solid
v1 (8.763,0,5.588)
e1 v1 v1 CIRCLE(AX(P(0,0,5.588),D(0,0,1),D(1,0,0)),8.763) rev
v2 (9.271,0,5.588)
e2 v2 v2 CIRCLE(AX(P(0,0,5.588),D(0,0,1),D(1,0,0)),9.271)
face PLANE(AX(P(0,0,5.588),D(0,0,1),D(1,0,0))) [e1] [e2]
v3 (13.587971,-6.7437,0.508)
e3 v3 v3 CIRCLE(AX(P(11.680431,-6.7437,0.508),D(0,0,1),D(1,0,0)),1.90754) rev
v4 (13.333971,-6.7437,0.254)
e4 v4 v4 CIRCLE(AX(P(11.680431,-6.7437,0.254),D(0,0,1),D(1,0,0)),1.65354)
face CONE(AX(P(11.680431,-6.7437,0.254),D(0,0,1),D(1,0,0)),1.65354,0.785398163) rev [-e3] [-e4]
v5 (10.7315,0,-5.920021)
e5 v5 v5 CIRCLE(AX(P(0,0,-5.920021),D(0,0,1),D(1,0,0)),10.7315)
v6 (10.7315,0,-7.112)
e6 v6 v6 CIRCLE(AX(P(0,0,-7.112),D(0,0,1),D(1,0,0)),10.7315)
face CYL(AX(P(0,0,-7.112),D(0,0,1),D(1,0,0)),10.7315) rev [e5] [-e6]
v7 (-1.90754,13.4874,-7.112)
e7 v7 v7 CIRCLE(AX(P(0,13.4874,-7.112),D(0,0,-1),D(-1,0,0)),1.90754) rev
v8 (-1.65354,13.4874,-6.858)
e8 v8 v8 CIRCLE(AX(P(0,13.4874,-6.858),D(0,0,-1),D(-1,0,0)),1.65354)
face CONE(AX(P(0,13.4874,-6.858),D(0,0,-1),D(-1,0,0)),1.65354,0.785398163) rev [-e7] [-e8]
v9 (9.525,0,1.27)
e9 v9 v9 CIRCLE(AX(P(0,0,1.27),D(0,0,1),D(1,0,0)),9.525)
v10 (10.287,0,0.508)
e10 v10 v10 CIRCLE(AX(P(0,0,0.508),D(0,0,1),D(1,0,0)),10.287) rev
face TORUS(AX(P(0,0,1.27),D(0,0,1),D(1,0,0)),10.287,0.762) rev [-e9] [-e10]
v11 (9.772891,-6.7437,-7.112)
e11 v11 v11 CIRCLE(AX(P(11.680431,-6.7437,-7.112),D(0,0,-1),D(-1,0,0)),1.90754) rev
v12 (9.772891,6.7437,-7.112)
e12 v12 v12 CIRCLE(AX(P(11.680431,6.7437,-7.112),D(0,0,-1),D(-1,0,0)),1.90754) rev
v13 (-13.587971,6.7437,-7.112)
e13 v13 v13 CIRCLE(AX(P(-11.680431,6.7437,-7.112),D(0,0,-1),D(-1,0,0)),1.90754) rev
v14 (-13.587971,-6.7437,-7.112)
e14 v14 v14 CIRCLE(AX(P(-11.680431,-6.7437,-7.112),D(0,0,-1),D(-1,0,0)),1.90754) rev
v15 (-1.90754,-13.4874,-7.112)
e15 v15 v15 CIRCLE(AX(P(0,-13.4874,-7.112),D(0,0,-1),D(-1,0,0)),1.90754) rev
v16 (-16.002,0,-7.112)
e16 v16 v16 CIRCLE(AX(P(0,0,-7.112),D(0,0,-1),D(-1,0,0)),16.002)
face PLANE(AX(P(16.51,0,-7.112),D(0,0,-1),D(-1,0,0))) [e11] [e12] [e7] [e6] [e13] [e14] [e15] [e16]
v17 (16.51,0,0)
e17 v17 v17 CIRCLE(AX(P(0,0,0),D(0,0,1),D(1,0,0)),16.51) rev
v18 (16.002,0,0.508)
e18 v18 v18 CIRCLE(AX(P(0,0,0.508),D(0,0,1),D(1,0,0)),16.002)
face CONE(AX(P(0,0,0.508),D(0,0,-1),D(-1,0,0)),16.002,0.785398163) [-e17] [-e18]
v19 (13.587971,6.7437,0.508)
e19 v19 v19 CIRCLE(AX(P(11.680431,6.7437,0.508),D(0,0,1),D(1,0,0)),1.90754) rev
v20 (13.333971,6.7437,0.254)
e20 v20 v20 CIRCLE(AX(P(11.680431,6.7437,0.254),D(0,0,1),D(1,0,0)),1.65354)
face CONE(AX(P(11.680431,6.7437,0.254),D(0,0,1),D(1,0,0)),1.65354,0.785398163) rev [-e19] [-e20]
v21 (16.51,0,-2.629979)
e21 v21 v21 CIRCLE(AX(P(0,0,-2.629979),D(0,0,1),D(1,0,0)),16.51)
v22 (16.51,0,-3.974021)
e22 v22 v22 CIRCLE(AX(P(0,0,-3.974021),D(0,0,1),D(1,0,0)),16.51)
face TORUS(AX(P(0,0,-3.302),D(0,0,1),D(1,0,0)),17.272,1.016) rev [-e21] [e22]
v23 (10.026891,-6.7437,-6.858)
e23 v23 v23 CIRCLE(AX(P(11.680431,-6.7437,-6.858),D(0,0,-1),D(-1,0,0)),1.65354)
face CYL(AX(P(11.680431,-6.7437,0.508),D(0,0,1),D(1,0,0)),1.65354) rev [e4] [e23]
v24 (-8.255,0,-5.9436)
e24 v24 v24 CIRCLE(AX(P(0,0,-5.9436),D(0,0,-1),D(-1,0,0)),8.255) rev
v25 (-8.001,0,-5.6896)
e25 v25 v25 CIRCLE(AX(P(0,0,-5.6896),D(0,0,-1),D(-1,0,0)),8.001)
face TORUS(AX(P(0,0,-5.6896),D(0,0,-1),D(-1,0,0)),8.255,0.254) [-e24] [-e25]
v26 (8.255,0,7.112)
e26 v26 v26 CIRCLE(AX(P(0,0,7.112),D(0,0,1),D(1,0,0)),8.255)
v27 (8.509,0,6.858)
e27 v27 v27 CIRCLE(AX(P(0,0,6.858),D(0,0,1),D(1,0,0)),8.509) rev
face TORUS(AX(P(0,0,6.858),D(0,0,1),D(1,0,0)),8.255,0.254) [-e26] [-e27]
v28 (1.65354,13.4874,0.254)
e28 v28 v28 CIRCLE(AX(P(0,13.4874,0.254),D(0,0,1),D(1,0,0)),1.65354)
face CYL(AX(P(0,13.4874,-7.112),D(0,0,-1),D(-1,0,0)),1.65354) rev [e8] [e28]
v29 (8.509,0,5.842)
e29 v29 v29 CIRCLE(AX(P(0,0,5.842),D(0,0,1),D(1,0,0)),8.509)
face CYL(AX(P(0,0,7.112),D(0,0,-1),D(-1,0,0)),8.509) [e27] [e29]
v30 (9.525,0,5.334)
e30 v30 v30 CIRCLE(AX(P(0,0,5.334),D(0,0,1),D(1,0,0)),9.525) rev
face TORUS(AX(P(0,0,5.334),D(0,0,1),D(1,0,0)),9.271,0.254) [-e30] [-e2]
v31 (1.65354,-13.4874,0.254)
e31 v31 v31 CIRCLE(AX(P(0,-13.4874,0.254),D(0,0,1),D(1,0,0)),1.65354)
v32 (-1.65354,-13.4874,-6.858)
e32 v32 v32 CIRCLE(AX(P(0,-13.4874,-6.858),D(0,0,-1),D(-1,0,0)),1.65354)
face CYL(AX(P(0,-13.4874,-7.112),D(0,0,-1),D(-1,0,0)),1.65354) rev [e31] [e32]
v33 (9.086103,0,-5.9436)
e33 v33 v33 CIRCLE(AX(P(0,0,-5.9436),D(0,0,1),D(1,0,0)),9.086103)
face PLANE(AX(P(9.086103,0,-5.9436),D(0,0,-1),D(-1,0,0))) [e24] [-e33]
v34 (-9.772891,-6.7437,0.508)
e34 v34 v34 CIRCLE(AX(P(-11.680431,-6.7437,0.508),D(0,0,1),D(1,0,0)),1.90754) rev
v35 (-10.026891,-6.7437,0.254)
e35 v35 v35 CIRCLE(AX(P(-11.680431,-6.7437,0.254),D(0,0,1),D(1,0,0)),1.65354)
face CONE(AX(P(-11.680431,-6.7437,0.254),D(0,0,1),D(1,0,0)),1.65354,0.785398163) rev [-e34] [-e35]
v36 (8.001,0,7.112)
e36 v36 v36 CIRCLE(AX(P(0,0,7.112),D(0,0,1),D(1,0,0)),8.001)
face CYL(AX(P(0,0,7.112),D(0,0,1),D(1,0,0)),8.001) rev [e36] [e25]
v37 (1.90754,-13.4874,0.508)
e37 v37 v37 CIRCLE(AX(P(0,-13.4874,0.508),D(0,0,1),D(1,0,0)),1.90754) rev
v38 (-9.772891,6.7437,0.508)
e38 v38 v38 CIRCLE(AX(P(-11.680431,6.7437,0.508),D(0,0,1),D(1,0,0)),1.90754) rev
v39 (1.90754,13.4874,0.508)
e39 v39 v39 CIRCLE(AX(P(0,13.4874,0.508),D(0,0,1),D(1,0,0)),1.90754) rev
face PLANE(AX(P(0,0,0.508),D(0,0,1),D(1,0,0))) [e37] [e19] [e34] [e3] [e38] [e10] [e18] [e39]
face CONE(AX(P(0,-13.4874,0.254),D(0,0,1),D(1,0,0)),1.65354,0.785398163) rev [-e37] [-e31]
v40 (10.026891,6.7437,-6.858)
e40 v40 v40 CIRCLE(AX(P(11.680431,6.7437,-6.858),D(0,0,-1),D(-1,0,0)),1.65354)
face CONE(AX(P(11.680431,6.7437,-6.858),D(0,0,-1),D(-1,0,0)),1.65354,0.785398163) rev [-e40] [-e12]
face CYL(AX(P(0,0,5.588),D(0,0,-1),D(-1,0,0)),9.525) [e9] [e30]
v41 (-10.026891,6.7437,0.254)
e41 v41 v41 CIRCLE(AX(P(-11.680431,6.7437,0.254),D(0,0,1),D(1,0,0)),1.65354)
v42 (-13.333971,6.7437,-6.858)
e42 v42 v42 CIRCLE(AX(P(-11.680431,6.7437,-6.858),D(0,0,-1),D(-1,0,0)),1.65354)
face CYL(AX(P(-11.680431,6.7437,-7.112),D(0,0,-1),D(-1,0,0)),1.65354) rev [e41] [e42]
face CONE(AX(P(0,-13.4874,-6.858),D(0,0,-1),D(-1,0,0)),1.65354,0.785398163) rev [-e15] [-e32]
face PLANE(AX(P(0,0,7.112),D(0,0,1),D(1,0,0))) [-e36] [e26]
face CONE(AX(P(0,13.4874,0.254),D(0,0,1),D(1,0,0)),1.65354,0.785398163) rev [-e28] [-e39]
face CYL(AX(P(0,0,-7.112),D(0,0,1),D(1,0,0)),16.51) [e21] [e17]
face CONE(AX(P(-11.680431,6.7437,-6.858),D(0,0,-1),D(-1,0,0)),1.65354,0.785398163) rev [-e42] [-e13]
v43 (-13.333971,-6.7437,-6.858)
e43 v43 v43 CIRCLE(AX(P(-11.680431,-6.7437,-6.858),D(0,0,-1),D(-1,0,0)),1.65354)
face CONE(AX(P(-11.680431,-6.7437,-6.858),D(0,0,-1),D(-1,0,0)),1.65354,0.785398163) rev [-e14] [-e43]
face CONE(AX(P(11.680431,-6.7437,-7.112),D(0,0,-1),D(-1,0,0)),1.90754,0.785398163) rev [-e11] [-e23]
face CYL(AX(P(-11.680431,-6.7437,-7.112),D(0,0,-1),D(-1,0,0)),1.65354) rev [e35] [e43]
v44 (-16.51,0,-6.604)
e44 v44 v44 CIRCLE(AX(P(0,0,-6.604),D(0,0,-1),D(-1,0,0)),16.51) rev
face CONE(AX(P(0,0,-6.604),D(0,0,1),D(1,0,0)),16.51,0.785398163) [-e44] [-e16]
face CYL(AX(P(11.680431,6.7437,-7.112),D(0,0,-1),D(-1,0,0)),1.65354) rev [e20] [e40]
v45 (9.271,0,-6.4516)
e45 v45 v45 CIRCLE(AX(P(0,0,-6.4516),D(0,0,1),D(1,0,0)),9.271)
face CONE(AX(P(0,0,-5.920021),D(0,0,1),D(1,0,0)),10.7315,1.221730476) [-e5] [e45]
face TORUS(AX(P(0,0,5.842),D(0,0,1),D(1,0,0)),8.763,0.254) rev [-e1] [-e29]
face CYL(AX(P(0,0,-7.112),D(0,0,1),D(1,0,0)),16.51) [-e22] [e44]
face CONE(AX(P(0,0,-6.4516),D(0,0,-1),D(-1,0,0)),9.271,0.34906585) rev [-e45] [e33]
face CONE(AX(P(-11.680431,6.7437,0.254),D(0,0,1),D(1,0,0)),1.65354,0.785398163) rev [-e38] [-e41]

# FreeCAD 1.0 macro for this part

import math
import FreeCAD as App
import Part
import Sketcher
from FreeCAD import Vector
Q = App.Units.Quantity


def edges_at(feature, points):
    """Names of the edges that pass closest to the given points."""
    edges = feature.Shape.Edges
    near = lambda p: min(range(len(edges)), key=lambda i: edges[i].distToShape(Part.Vertex(*p))[0])
    return sorted({f"Edge{near(p) + 1}" for p in points})

doc = App.newDocument("Part")
body = doc.addObject("PartDesign::Body", "Body")

# Sketch on XZ plane
sketch1 = body.newObject("Sketcher::SketchObject", "Sketch")
sketch1.AttachmentSupport = (doc.getObject("XZ_Plane"), [""])
sketch1.MapMode = "FlatFace"
sketch1.addGeometry(Part.LineSegment(Vector(9.1, -5.9, 0), Vector(0, -5.9, 0)), False)
sketch1.addGeometry(Part.LineSegment(Vector(0, -5.9, 0), Vector(0, 0.5, 0)), False)
sketch1.addGeometry(Part.LineSegment(Vector(0, 0.5, 0), Vector(16.5, 0.5, 0)), False)
sketch1.addGeometry(Part.LineSegment(Vector(16.5, 0.5, 0), Vector(16.5, -2.6, 0)), False)
sketch1.addGeometry(Part.ArcOfCircle(Part.Circle(Vector(17.3, -3.3, 0), Vector(0, 0, 1), 1), math.radians(139), math.radians(221)), False)
sketch1.addGeometry(Part.LineSegment(Vector(16.5, -4, 0), Vector(16.5, -7.1, 0)), False)
sketch1.addGeometry(Part.LineSegment(Vector(16.5, -7.1, 0), Vector(10.7, -7.1, 0)), False)
sketch1.addGeometry(Part.LineSegment(Vector(10.7, -7.1, 0), Vector(10.7, -5.9, 0)), False)
sketch1.addGeometry(Part.LineSegment(Vector(10.7, -5.9, 0), Vector(9.3, -6.5, 0)), False)
sketch1.addGeometry(Part.LineSegment(Vector(9.3, -6.5, 0), Vector(9.1, -5.9, 0)), False)
sketch1.addConstraint(Sketcher.Constraint("Coincident", 0, 2, 1, 1))
sketch1.addConstraint(Sketcher.Constraint("Coincident", 1, 2, 2, 1))
sketch1.addConstraint(Sketcher.Constraint("Coincident", 2, 2, 3, 1))
sketch1.addConstraint(Sketcher.Constraint("Coincident", 3, 2, 4, 1))
sketch1.addConstraint(Sketcher.Constraint("Coincident", 4, 2, 5, 1))
sketch1.addConstraint(Sketcher.Constraint("Coincident", 5, 2, 6, 1))
sketch1.addConstraint(Sketcher.Constraint("Coincident", 6, 2, 7, 1))
sketch1.addConstraint(Sketcher.Constraint("Coincident", 7, 2, 8, 1))
sketch1.addConstraint(Sketcher.Constraint("Coincident", 8, 2, 9, 1))
sketch1.addConstraint(Sketcher.Constraint("Coincident", 9, 2, 0, 1))
sketch1.addConstraint(Sketcher.Constraint("Horizontal", 0))
sketch1.addConstraint(Sketcher.Constraint("Vertical", 1))
sketch1.addConstraint(Sketcher.Constraint("Horizontal", 2))
sketch1.addConstraint(Sketcher.Constraint("Vertical", 3))
sketch1.addConstraint(Sketcher.Constraint("Vertical", 5))
sketch1.addConstraint(Sketcher.Constraint("Horizontal", 6))
sketch1.addConstraint(Sketcher.Constraint("Vertical", 7))
sketch1.addConstraint(Sketcher.Constraint("PointOnObject", 0, 2, -2))
sketch1.addConstraint(Sketcher.Constraint("Perpendicular", 8, 9))
sketch1.addConstraint(Sketcher.Constraint("Vertical", 3, 2, 4, 2))
sketch1.addConstraint(Sketcher.Constraint("Equal", 3, 5))
sketch1.addConstraint(Sketcher.Constraint("Radius", 4, Q("0.04 in")))
sketch1.addConstraint(Sketcher.Constraint("Angle", 8, Q("-160 deg")))
sketch1.addConstraint(Sketcher.Constraint("DistanceX", 2, 1, 2, 2, Q("0.65 in")))
sketch1.addConstraint(Sketcher.Constraint("DistanceY", 5, 2, 2, 2, Q("0.3 in")))
sketch1.addConstraint(Sketcher.Constraint("DistanceY", 1, 1, 1, 2, Q("0.254 in")))
sketch1.addConstraint(Sketcher.Constraint("DistanceX", -1, 1, 4, 3, Q("0.68 in")))
sketch1.addConstraint(Sketcher.Constraint("DistanceY", 4, 3, -1, 1, Q("0.13 in")))
sketch1.addConstraint(Sketcher.Constraint("DistanceY", 8, 2, 9, 2, Q("0.02 in")))
sketch1.addConstraint(Sketcher.Constraint("DistanceX", 6, 2, 6, 1, Q("0.2275 in")))
sketch1.addConstraint(Sketcher.Constraint("DistanceX", -1, 1, 8, 2, Q("0.365 in")))
revolution = body.newObject("PartDesign::Revolution", "Revolution")
revolution.Profile = sketch1
revolution.ReferenceAxis = (sketch1, ["V_Axis"])
revolution.Angle = 360

# Sketch on XY plane
sketch2 = body.newObject("Sketcher::SketchObject", "Sketch001")
sketch2.AttachmentSupport = (doc.getObject("XY_Plane"), [""])
sketch2.MapMode = "FlatFace"
sketch2.AttachmentOffset = App.Placement(Vector(0, 0, 0.02 * 25.4), App.Rotation())
sketch2.addGeometry(Part.Circle(Vector(0, 0, 0), Vector(0, 0, 1), 10), False)
sketch2.addConstraint(Sketcher.Constraint("Coincident", 0, 3, -1, 1))
sketch2.addConstraint(Sketcher.Constraint("Diameter", 0, Q("0.75 in")))
pad1 = body.newObject("PartDesign::Pad", "Pad")
pad1.Profile = sketch2
pad1.Length = Q("0.2 in")

# Sketch on XY plane
sketch3 = body.newObject("Sketcher::SketchObject", "Sketch002")
sketch3.AttachmentSupport = (doc.getObject("XY_Plane"), [""])
sketch3.MapMode = "FlatFace"
sketch3.AttachmentOffset = App.Placement(Vector(0, 0, 0.22 * 25.4), App.Rotation())
sketch3.addGeometry(Part.Circle(Vector(0, 0, 0), Vector(0, 0, 1), 9), False)
sketch3.addConstraint(Sketcher.Constraint("Coincident", 0, 3, -1, 1))
sketch3.addConstraint(Sketcher.Constraint("Diameter", 0, Q("0.67 in")))
pad2 = body.newObject("PartDesign::Pad", "Pad001")
pad2.Profile = sketch3
pad2.Length = Q("0.06 in")

# Sketch on XY plane
sketch4 = body.newObject("Sketcher::SketchObject", "Sketch003")
sketch4.AttachmentSupport = (doc.getObject("XY_Plane"), [""])
sketch4.MapMode = "FlatFace"
sketch4.AttachmentOffset = App.Placement(Vector(0, 0, 0.28 * 25.4), App.Rotation())
sketch4.addGeometry(Part.Circle(Vector(0, 0, 0), Vector(0, 0, 1), 8), False)
sketch4.addConstraint(Sketcher.Constraint("Coincident", 0, 3, -1, 1))
sketch4.addConstraint(Sketcher.Constraint("Diameter", 0, Q("0.63 in")))
doc.recompute()
hole = body.newObject("PartDesign::Hole", "Hole")
hole.Profile = sketch4
hole.ThreadType = "None"
hole.Diameter = Q("0.63 in")
hole.DepthType = "Dimension"
hole.Depth = Q("0.56 in")
hole.DrillPoint = "Flat"

# Sketch on XY plane
sketch5 = body.newObject("Sketcher::SketchObject", "Sketch004")
sketch5.AttachmentSupport = (doc.getObject("XY_Plane"), [""])
sketch5.MapMode = "FlatFace"
sketch5.AttachmentOffset = App.Placement(Vector(0, 0, 0.02 * 25.4), App.Rotation())
sketch5.addGeometry(Part.Circle(Vector(11.7, -6.7, 0), Vector(0, 0, 1), 1.7), False)
sketch5.addConstraint(Sketcher.Constraint("Diameter", 0, Q("0.1302 in")))
sketch5.addConstraint(Sketcher.Constraint("DistanceY", 0, 3, -1, 1, Q("0.2655 in")))
sketch5.addConstraint(Sketcher.Constraint("DistanceX", -1, 1, 0, 3, Q("11.680431 mm")))
doc.recompute()
hole2 = body.newObject("PartDesign::Hole", "Hole001")
hole2.Profile = sketch5
hole2.ThreadType = "None"
hole2.Diameter = Q("0.1302 in")
hole2.DepthType = "ThroughAll"

# Sketch on XY plane
sketch6 = body.newObject("Sketcher::SketchObject", "Sketch005")
sketch6.AttachmentSupport = (doc.getObject("XY_Plane"), [""])
sketch6.MapMode = "FlatFace"
sketch6.AttachmentOffset = App.Placement(Vector(0, 0, -0.28 * 25.4), App.Rotation())
sketch6.addGeometry(Part.Circle(Vector(0, 13.5, 0), Vector(0, 0, 1), 1.7), False)
sketch6.addGeometry(Part.Circle(Vector(-11.7, 6.7, 0), Vector(0, 0, 1), 1.7), False)
sketch6.addGeometry(Part.Circle(Vector(-11.7, -6.7, 0), Vector(0, 0, 1), 1.7), False)
sketch6.addGeometry(Part.Circle(Vector(0, -13.5, 0), Vector(0, 0, 1), 1.7), False)
sketch6.addGeometry(Part.Circle(Vector(11.7, 6.7, 0), Vector(0, 0, 1), 1.7), False)
sketch6.addConstraint(Sketcher.Constraint("Equal", 0, 1))
sketch6.addConstraint(Sketcher.Constraint("Equal", 1, 2))
sketch6.addConstraint(Sketcher.Constraint("Equal", 2, 3))
sketch6.addConstraint(Sketcher.Constraint("Equal", 3, 4))
sketch6.addConstraint(Sketcher.Constraint("Symmetric", 0, 3, 3, 3, -1, 1))
sketch6.addConstraint(Sketcher.Constraint("Symmetric", 2, 3, 4, 3, -1, 1))
sketch6.addConstraint(Sketcher.Constraint("Symmetric", 1, 3, 4, 3, -2))
sketch6.addConstraint(Sketcher.Constraint("PointOnObject", 0, 3, -2))
sketch6.addConstraint(Sketcher.Constraint("Diameter", 0, Q("0.1302 in")))
sketch6.addConstraint(Sketcher.Constraint("DistanceY", -1, 1, 0, 3, Q("0.531 in")))
sketch6.addConstraint(Sketcher.Constraint("DistanceY", 2, 3, 1, 3, Q("0.531 in")))
sketch6.addConstraint(Sketcher.Constraint("DistanceX", 1, 3, -1, 1, Q("11.680431 mm")))
doc.recompute()
hole3 = body.newObject("PartDesign::Hole", "Hole002")
hole3.Profile = sketch6
hole3.ThreadType = "None"
hole3.Diameter = Q("0.1302 in")
hole3.DepthType = "Dimension"
hole3.Depth = Q("0.56 in")
hole3.DrillPoint = "Flat"
hole3.Reversed = True
doc.recompute()

chamfer = body.newObject("PartDesign::Chamfer", "Chamfer")
chamfer.Base = (hole3, edges_at(hole3, [
    (13.334, -6.744, 0.508),
    (13.334, -6.744, -7.112),
    (10.027, 6.744, 0.508),
    (10.027, 6.744, -7.112),
    (-1.654, -13.487, 0.508),
    (-1.654, -13.487, -7.112),
    (-13.334, -6.744, 0.508),
    (-13.334, -6.744, -7.112),
    (-13.334, 6.744, 0.508),
    (-13.334, 6.744, -7.112),
    (-1.654, 13.487, 0.508),
    (-1.654, 13.487, -7.112),
]))
chamfer.Size = Q("0.01 in")
doc.recompute()

chamfer2 = body.newObject("PartDesign::Chamfer", "Chamfer001")
chamfer2.Base = (chamfer, edges_at(chamfer, [(-16.51, 0, 0.508), (-16.51, 0, -7.112)]))
chamfer2.Size = Q("0.02 in")
doc.recompute()

fillet = body.newObject("PartDesign::Fillet", "Fillet")
fillet.Base = (chamfer2, edges_at(chamfer2, [
    (-9.525, 0, 5.588),
    (-8.509, 0, 5.588),
    (-8.509, 0, 7.112),
    (8.001, 0, -5.944),
]))
fillet.Radius = Q("0.01 in")
doc.recompute()

fillet2 = body.newObject("PartDesign::Fillet", "Fillet001")
fillet2.Base = (fillet, edges_at(fillet, [(-9.525, 0, 0.508)]))
fillet2.Radius = Q("0.03 in")

doc.recompute()
